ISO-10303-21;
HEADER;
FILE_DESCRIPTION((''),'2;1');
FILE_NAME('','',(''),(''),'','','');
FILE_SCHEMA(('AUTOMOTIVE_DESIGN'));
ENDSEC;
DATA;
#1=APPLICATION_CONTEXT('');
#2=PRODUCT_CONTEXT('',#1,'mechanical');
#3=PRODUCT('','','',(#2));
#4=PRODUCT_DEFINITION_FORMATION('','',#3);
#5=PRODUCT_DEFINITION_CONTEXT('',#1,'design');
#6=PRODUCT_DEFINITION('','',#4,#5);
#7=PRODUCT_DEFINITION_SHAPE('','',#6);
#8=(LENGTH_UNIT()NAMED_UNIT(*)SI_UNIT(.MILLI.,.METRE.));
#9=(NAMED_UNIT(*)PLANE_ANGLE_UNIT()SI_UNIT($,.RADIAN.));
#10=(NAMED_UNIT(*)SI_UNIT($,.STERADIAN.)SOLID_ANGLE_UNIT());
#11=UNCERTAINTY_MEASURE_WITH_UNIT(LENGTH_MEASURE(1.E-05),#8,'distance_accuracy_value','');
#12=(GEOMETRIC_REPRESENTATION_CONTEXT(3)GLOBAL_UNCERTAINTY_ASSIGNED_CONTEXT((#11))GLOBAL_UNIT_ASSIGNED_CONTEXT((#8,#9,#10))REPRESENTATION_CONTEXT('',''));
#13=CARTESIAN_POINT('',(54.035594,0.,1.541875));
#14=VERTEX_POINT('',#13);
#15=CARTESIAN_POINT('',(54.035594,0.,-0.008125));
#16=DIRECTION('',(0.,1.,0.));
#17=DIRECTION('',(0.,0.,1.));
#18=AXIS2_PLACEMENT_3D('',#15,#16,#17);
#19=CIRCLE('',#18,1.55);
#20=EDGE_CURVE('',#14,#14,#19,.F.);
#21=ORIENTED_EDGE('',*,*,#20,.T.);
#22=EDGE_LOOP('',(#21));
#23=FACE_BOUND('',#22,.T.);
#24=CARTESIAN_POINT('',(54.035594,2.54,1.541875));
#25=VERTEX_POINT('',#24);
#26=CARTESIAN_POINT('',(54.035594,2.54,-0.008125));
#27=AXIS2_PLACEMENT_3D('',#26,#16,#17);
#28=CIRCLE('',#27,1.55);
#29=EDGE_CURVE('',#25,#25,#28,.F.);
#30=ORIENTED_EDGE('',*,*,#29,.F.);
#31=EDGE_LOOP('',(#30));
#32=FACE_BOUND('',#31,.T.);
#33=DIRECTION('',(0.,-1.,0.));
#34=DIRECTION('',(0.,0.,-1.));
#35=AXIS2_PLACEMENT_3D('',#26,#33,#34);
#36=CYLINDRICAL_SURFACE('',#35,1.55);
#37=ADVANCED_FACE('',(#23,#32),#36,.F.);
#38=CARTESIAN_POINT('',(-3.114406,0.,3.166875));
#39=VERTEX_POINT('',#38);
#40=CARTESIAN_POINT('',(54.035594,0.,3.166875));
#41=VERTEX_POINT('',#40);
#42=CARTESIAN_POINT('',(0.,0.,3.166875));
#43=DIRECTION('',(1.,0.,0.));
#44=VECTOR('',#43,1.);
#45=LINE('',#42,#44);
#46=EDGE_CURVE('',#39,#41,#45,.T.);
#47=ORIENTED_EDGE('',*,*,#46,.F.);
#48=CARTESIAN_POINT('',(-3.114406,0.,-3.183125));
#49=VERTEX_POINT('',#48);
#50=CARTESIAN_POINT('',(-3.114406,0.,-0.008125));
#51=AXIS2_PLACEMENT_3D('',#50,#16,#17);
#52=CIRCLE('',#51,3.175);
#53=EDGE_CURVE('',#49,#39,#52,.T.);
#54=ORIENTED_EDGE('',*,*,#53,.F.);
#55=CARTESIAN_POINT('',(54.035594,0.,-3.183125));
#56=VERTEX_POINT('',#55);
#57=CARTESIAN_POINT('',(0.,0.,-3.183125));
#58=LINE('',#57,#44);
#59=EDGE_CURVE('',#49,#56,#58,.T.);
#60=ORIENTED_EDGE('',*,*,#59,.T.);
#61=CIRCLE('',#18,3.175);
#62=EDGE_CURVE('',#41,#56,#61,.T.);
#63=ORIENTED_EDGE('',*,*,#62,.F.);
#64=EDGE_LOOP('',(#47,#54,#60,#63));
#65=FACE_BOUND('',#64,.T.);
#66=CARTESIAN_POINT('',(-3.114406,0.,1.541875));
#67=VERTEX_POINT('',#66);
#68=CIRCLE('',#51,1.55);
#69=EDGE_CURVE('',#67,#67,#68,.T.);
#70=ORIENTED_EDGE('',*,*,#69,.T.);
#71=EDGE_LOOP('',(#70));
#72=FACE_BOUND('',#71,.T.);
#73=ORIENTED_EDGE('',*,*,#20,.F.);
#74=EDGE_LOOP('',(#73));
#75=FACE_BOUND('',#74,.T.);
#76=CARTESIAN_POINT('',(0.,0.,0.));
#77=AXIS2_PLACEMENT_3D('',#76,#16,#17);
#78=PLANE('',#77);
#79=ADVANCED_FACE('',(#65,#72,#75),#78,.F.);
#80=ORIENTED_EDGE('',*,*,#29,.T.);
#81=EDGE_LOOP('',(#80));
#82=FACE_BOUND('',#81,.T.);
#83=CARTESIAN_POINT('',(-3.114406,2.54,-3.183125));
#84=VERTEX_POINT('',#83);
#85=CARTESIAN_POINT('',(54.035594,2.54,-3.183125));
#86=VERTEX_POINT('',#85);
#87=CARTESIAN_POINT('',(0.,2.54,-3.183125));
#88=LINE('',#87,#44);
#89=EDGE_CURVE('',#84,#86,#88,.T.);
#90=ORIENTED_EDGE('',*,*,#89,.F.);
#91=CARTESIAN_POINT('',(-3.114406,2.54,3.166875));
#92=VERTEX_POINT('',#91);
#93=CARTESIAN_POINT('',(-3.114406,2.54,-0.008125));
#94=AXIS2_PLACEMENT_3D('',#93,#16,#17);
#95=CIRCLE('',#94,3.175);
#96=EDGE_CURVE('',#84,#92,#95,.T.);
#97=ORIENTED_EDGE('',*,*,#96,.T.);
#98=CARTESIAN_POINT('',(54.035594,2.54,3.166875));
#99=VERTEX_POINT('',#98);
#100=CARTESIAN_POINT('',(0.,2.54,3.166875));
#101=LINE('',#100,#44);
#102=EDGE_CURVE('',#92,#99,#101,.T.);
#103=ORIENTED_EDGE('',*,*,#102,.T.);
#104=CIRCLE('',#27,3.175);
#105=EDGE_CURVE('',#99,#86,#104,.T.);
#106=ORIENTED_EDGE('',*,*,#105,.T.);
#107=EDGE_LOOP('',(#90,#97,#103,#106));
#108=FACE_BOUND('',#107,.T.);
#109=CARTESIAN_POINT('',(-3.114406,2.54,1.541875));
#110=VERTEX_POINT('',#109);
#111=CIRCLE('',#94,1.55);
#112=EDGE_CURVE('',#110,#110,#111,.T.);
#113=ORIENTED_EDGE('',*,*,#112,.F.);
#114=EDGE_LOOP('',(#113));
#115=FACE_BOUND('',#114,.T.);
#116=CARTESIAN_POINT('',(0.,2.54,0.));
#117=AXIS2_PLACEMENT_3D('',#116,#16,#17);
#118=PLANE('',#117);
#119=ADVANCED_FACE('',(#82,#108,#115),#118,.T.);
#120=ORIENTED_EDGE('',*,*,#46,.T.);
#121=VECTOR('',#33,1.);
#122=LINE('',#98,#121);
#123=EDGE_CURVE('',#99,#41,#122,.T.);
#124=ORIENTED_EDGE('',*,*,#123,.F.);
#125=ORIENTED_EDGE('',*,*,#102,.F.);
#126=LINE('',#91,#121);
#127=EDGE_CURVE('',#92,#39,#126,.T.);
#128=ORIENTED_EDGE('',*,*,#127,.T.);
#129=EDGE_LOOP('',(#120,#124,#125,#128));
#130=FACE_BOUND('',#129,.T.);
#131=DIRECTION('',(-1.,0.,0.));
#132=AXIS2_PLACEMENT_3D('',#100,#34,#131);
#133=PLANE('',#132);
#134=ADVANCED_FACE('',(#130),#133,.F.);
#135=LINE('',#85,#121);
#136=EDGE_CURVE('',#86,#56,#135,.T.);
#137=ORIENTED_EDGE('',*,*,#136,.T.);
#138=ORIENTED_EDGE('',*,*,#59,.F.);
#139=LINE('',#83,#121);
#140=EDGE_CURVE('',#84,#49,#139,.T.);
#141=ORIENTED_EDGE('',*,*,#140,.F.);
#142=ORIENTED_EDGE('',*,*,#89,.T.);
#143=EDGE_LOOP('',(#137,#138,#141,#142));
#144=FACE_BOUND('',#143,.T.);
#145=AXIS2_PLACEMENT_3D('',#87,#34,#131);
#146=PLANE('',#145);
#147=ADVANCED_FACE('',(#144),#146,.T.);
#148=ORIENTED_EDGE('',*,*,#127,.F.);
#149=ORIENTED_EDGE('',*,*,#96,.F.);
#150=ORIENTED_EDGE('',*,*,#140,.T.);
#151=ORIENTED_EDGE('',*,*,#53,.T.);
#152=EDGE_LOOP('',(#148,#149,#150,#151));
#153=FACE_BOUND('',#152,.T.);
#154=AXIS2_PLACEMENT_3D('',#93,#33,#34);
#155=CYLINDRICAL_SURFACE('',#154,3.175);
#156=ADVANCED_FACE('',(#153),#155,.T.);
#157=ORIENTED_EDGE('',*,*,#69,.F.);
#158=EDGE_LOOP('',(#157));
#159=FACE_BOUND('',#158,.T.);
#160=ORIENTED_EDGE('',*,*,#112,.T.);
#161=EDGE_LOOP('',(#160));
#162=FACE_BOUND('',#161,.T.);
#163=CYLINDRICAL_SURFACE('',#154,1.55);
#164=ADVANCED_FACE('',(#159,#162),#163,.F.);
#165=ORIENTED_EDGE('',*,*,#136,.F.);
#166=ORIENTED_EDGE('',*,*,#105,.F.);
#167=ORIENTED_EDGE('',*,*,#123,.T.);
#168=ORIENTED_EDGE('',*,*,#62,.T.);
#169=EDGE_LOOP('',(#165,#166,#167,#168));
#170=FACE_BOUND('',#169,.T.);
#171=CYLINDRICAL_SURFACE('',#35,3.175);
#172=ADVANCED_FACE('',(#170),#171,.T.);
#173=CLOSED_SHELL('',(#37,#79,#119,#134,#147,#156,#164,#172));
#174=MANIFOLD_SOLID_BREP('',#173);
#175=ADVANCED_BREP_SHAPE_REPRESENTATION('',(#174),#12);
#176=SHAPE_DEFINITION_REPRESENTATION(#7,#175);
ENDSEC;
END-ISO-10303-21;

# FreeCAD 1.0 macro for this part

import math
import FreeCAD as App
import Part
import Sketcher
from FreeCAD import Vector
Q = App.Units.Quantity

doc = App.newDocument("Part")
body = doc.addObject("PartDesign::Body", "Body")

# Sketch on XZ plane
sketch1 = body.newObject("Sketcher::SketchObject", "Sketch")
sketch1.AttachmentSupport = (doc.getObject("XZ_Plane"), [""])
sketch1.MapMode = "FlatFace"
sketch1.addGeometry([
    Part.LineSegment(Vector(54.035594, -3.183125, 0), Vector(-3.114406, -3.183125, 0)),  # 0
    Part.ArcOfCircle(Part.Circle(Vector(-3.114406, -0.008125, 0), Vector(0, 0, 1), 3.175), math.radians(90), math.radians(270)),  # 1
    Part.LineSegment(Vector(-3.114406, 3.166875, 0), Vector(54.035594, 3.166875, 0)),  # 2
    Part.ArcOfCircle(Part.Circle(Vector(54.035594, -0.008125, 0), Vector(0, 0, 1), 3.175), math.radians(-90), math.radians(90)),  # 3
    Part.Circle(Vector(54.035594, -0.008125, 0), Vector(0, 0, 1), 1.55),  # 4
    Part.Circle(Vector(-3.114406, -0.008125, 0), Vector(0, 0, 1), 1.55),  # 5
], False)
sketch1.addConstraint([
    Sketcher.Constraint("Tangent", 0, 2, 1, 2),
    Sketcher.Constraint("Tangent", 1, 1, 2, 1),
    Sketcher.Constraint("Tangent", 2, 2, 3, 2),
    Sketcher.Constraint("Tangent", 3, 1, 0, 1),
    Sketcher.Constraint("Horizontal", 0),
    Sketcher.Constraint("Horizontal", 2),
    Sketcher.Constraint("Coincident", 4, 3, 3, 3),
    Sketcher.Constraint("Coincident", 5, 3, 1, 3),
    Sketcher.Constraint("Equal", 4, 5),
    Sketcher.Constraint("Radius", 1, Q("0.125 in")),
    Sketcher.Constraint("DistanceX", 0, 2, 0, 1, Q("2.25 in")),
    Sketcher.Constraint("Diameter", 4, Q("3.1 mm")),
    Sketcher.Constraint("DistanceX", 1, 3, -1, 1, Q("3.114406 mm")),
    Sketcher.Constraint("DistanceY", 1, 3, -1, 1, Q("0.008125 mm")),
])
pad1 = body.newObject("PartDesign::Pad", "Pad")
pad1.Profile = sketch1
pad1.Length = Q("0.1 in")
pad1.Reversed = True

doc.recompute()
